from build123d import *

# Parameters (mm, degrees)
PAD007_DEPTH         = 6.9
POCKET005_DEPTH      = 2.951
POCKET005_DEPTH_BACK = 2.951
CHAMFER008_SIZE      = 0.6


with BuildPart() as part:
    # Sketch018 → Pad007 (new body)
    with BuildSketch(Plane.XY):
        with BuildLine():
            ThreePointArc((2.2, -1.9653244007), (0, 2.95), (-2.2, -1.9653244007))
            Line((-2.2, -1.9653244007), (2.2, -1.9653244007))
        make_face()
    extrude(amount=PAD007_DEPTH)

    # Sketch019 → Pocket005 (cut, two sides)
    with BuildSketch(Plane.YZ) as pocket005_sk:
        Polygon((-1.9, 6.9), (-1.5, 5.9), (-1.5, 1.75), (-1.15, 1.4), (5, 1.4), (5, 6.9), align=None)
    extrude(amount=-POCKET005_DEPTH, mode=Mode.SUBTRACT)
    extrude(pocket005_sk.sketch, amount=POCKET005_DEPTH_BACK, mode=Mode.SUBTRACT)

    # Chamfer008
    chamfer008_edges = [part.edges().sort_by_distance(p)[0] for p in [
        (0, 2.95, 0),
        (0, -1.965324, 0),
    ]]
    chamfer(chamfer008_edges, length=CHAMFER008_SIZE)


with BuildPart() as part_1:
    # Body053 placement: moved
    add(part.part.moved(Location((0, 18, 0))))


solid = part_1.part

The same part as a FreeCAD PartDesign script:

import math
import FreeCAD as App
import Part
import Sketcher
from FreeCAD import Vector
Q = App.Units.Quantity


def edges_at(feature, points):
    """Names of the edges that pass closest to the given points."""
    edges = feature.Shape.Edges
    near = lambda p: min(range(len(edges)), key=lambda i: edges[i].distToShape(Part.Vertex(*p))[0])
    return sorted({f"Edge{near(p) + 1}" for p in points})

doc = App.newDocument("Part")
params = doc.addObject("Spreadsheet::Sheet", "Params")
for row, (alias, value) in enumerate([
    ("sketch1_radius", "2.95 mm"),
    ("sketch1_width", "4.4 mm"),
    ("pad1_length", "6.9 mm"),
    ("sketch2_width", "6.9 mm"),
    ("sketch2_height", "5.5 mm"),
    ("sketch2_width2", "6.15 mm"),
    ("sketch2_height2", "4.15 mm"),
    ("chamfer_size", "0.6 mm"),
], start=1):
    params.set(f"A{row}", alias)
    params.set(f"B{row}", "=" + value)
    params.setAlias(f"B{row}", alias)

body = doc.addObject("PartDesign::Body", "Body")

# Sketch on XY plane
sketch1 = body.newObject("Sketcher::SketchObject", "Sketch")
sketch1.AttachmentSupport = (doc.getObject("XY_Plane"), [""])
sketch1.MapMode = "FlatFace"
sketch1.addGeometry(Part.ArcOfCircle(Part.Circle(Vector(0, 0, 0), Vector(0, 0, 1), 2.95), math.radians(-41.775348), math.radians(221.775348)), False)
sketch1.addGeometry(Part.LineSegment(Vector(-2.2, -1.965324, 0), Vector(2.2, -1.965324, 0)), False)
sketch1.addConstraint(Sketcher.Constraint("Coincident", 0, 1, 1, 2))
sketch1.addConstraint(Sketcher.Constraint("Coincident", 1, 1, 0, 2))
sketch1.addConstraint(Sketcher.Constraint("Horizontal", 1))
sketch1.addConstraint(Sketcher.Constraint("Coincident", 0, 3, -1, 1))
sketch1.addConstraint(Sketcher.Constraint("Radius", 0, Q("2.95 mm")))
sketch1.addConstraint(Sketcher.Constraint("DistanceX", 1, 1, 1, 2, Q("4.4 mm")))
sketch1.setExpression("Constraints[4]", "Params.sketch1_radius")
sketch1.setExpression("Constraints[5]", "Params.sketch1_width")
pad1 = body.newObject("PartDesign::Pad", "Pad")
pad1.Profile = sketch1
pad1.setExpression("Length", "Params.pad1_length")

# Sketch on YZ plane
sketch2 = body.newObject("Sketcher::SketchObject", "Sketch001")
sketch2.AttachmentSupport = (doc.getObject("YZ_Plane"), [""])
sketch2.MapMode = "FlatFace"
sketch2.addGeometry(Part.LineSegment(Vector(-1.9, 6.9, 0), Vector(-1.5, 5.9, 0)), False)
sketch2.addGeometry(Part.LineSegment(Vector(-1.5, 5.9, 0), Vector(-1.5, 1.75, 0)), False)
sketch2.addGeometry(Part.LineSegment(Vector(-1.5, 1.75, 0), Vector(-1.15, 1.4, 0)), False)
sketch2.addGeometry(Part.LineSegment(Vector(-1.15, 1.4, 0), Vector(5, 1.4, 0)), False)
sketch2.addGeometry(Part.LineSegment(Vector(5, 1.4, 0), Vector(5, 6.9, 0)), False)
sketch2.addGeometry(Part.LineSegment(Vector(5, 6.9, 0), Vector(-1.9, 6.9, 0)), False)
sketch2.addConstraint(Sketcher.Constraint("Coincident", 0, 2, 1, 1))
sketch2.addConstraint(Sketcher.Constraint("Coincident", 1, 2, 2, 1))
sketch2.addConstraint(Sketcher.Constraint("Coincident", 2, 2, 3, 1))
sketch2.addConstraint(Sketcher.Constraint("Coincident", 3, 2, 4, 1))
sketch2.addConstraint(Sketcher.Constraint("Coincident", 4, 2, 5, 1))
sketch2.addConstraint(Sketcher.Constraint("Coincident", 5, 2, 0, 1))
sketch2.addConstraint(Sketcher.Constraint("Vertical", 1))
sketch2.addConstraint(Sketcher.Constraint("Horizontal", 3))
sketch2.addConstraint(Sketcher.Constraint("Vertical", 4))
sketch2.addConstraint(Sketcher.Constraint("Horizontal", 5))
sketch2.addConstraint(Sketcher.Constraint("Angle", 2, Q("-45 deg")))
sketch2.addConstraint(Sketcher.Constraint("DistanceX", 5, 2, 5, 1, Q("6.9 mm")))
sketch2.addConstraint(Sketcher.Constraint("DistanceY", 4, 1, 4, 2, Q("5.5 mm")))
sketch2.addConstraint(Sketcher.Constraint("DistanceX", -1, 1, 3, 2, Q("5 mm")))
sketch2.addConstraint(Sketcher.Constraint("DistanceY", 0, 2, 4, 2, Q("1 mm")))
sketch2.addConstraint(Sketcher.Constraint("DistanceX", 3, 1, 3, 2, Q("6.15 mm")))
sketch2.addConstraint(Sketcher.Constraint("DistanceY", 1, 2, 1, 1, Q("4.15 mm")))
sketch2.addConstraint(Sketcher.Constraint("DistanceY", -1, 1, 0, 2, Q("5.9 mm")))
sketch2.setExpression("Constraints[11]", "Params.sketch2_width")
sketch2.setExpression("Constraints[12]", "Params.sketch2_height")
sketch2.setExpression("Constraints[15]", "Params.sketch2_width2")
sketch2.setExpression("Constraints[16]", "Params.sketch2_height2")
pocket1 = body.newObject("PartDesign::Pocket", "Pocket")
pocket1.Profile = sketch2
pocket1.Type = "ThroughAll"
pocket1.Midplane = True
doc.recompute()

chamfer = body.newObject("PartDesign::Chamfer", "Chamfer")
chamfer.Base = (pocket1, edges_at(pocket1, [(0, 2.95, 0), (0, -1.965, 0)]))
chamfer.setExpression("Size", "Params.chamfer_size")
body2 = doc.addObject("PartDesign::Body", "Body001")
doc.recompute()

body.Placement = App.Placement(Vector(0, 18, 0), App.Rotation(Vector(0, 0, 1), 0))
boolean = body2.newObject("PartDesign::Boolean", "Boolean")
boolean.Type = "Fuse"
boolean.addObjects([body])

doc.recompute()
